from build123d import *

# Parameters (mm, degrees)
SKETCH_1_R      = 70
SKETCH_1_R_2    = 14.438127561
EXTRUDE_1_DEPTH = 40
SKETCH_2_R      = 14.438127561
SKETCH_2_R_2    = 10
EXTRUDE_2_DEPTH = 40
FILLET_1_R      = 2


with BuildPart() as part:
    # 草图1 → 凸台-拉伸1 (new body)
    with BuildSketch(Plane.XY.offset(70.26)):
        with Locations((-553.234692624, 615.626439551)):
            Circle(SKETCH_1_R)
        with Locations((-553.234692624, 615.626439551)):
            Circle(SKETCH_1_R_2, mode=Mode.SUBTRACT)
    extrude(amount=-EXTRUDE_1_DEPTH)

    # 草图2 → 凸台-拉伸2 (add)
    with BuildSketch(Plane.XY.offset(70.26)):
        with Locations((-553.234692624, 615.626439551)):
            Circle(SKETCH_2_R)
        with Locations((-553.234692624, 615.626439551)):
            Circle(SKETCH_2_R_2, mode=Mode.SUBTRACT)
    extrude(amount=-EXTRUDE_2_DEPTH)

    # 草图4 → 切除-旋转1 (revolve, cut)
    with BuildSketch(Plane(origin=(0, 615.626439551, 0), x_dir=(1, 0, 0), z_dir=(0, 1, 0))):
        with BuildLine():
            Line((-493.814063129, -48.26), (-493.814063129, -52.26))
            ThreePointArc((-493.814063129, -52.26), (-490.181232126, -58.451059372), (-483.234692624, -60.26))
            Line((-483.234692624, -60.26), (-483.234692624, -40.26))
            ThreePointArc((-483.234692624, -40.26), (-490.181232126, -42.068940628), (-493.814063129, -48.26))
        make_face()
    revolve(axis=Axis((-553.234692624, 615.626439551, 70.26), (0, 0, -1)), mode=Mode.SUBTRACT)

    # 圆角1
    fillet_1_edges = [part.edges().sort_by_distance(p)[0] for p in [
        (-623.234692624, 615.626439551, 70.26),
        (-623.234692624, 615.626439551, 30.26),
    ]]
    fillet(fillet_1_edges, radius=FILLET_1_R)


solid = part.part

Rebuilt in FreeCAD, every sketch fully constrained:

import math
import FreeCAD as App
import Part
import Sketcher

V = App.Vector
Q = App.Units.Quantity


def edges_at(feature, points):
    """Names of the edges that pass closest to the given points."""
    edges = feature.Shape.Edges
    near = lambda p: min(range(len(edges)), key=lambda i: edges[i].distToShape(Part.Vertex(*p))[0])
    return sorted({f"Edge{near(p) + 1}" for p in points})

doc = App.newDocument("Part")
body = doc.addObject("PartDesign::Body", "Body")

# Sketch on XY plane
sketch1 = body.newObject("Sketcher::SketchObject", "Sketch")
sketch1.AttachmentSupport = (doc.getObject("XY_Plane"), [""])
sketch1.MapMode = "FlatFace"
sketch1.AttachmentOffset = App.Placement(V(0, 0, 70.26), App.Rotation())
sketch1.addGeometry(Part.Circle(V(-553, 616, 0), V(0, 0, 1), 70), False)
sketch1.addGeometry(Part.Circle(V(-553, 616, 0), V(0, 0, 1), 14), False)
sketch1.addConstraint(Sketcher.Constraint("Coincident", 1, 3, 0, 3))
sketch1.addConstraint(Sketcher.Constraint("Diameter", 0, Q("140 mm")))
sketch1.addConstraint(Sketcher.Constraint("Diameter", 1, Q("28.876255 mm")))
sketch1.addConstraint(Sketcher.Constraint("DistanceY", -1, 1, 0, 3, Q("615.62644 mm")))
sketch1.addConstraint(Sketcher.Constraint("DistanceX", 0, 3, -1, 1, Q("553.234693 mm")))
pad1 = body.newObject("PartDesign::Pad", "Pad")
pad1.Profile = sketch1
pad1.Length = 40
pad1.Reversed = True

# Sketch on XY plane
sketch2 = body.newObject("Sketcher::SketchObject", "Sketch001")
sketch2.AttachmentSupport = (doc.getObject("XY_Plane"), [""])
sketch2.MapMode = "FlatFace"
sketch2.AttachmentOffset = App.Placement(V(0, 0, 70.26), App.Rotation())
sketch2.addGeometry(Part.Circle(V(-553, 616, 0), V(0, 0, 1), 14), False)
sketch2.addGeometry(Part.Circle(V(-553, 616, 0), V(0, 0, 1), 10), False)
sketch2.addConstraint(Sketcher.Constraint("Coincident", 1, 3, 0, 3))
sketch2.addConstraint(Sketcher.Constraint("Diameter", 1, Q("20 mm")))
sketch2.addConstraint(Sketcher.Constraint("Diameter", 0, Q("28.876255 mm")))
sketch2.addConstraint(Sketcher.Constraint("DistanceY", -1, 1, 0, 3, Q("615.62644 mm")))
sketch2.addConstraint(Sketcher.Constraint("DistanceX", 0, 3, -1, 1, Q("553.234693 mm")))
pad2 = body.newObject("PartDesign::Pad", "Pad001")
pad2.Profile = sketch2
pad2.Length = 40
pad2.Reversed = True

# Sketch on XZ plane
sketch3 = body.newObject("Sketcher::SketchObject", "Sketch002")
sketch3.AttachmentSupport = (doc.getObject("XZ_Plane"), [""])
sketch3.MapMode = "FlatFace"
sketch3.AttachmentOffset = App.Placement(V(0, 0, -615.62644), App.Rotation())
sketch3.addGeometry(Part.LineSegment(V(-493.8, 48.3, 0), V(-493.8, 52.3, 0)), False)
sketch3.addGeometry(Part.ArcOfCircle(Part.Circle(V(-484.5, 51, 0), V(0, 0, 1), 9.4), math.radians(82), math.radians(172)), False)
sketch3.addGeometry(Part.LineSegment(V(-483.2, 60.3, 0), V(-483.2, 40.3, 0)), False)
sketch3.addGeometry(Part.ArcOfCircle(Part.Circle(V(-484.5, 49.5, 0), V(0, 0, 1), 9.4), math.radians(-172), math.radians(-82)), False)
sketch3.addGeometry(Part.LineSegment(V(-553.2, 60.3, 0), V(-553.2, 40.3, 0)), True)  # axis
sketch3.addConstraint(Sketcher.Constraint("Coincident", 0, 2, 1, 2))
sketch3.addConstraint(Sketcher.Constraint("Coincident", 1, 1, 2, 1))
sketch3.addConstraint(Sketcher.Constraint("Coincident", 2, 2, 3, 2))
sketch3.addConstraint(Sketcher.Constraint("Coincident", 3, 1, 0, 1))
sketch3.addConstraint(Sketcher.Constraint("Vertical", 0))
sketch3.addConstraint(Sketcher.Constraint("Vertical", 2))
sketch3.addConstraint(Sketcher.Constraint("Vertical", 4))
sketch3.addConstraint(Sketcher.Constraint("Equal", 1, 3))
sketch3.addConstraint(Sketcher.Constraint("Horizontal", 1, 1, 4, 1))
sketch3.addConstraint(Sketcher.Constraint("Horizontal", 2, 2, 4, 2))
sketch3.addConstraint(Sketcher.Constraint("Vertical", 1, 3, 3, 3))
sketch3.addConstraint(Sketcher.Constraint("DistanceY", 0, 1, 0, 2, Q("4 mm")))
sketch3.addConstraint(Sketcher.Constraint("DistanceY", 2, 2, 2, 1, Q("20 mm")))
sketch3.addConstraint(Sketcher.Constraint("DistanceX", 4, 1, 1, 1, Q("70 mm")))
sketch3.addConstraint(Sketcher.Constraint("DistanceY", -1, 1, 0, 2, Q("52.26 mm")))
sketch3.addConstraint(Sketcher.Constraint("Radius", 1, Q("9.378781 mm")))
sketch3.addConstraint(Sketcher.Constraint("DistanceY", 3, 3, 1, 3, Q("1.420629 mm")))
sketch3.addConstraint(Sketcher.Constraint("DistanceX", 1, 3, -1, 1, Q("484.524378 mm")))
groove = body.newObject("PartDesign::Groove", "Groove")
groove.Profile = sketch3
groove.ReferenceAxis = (sketch3, ["Axis0"])
groove.Angle = 360
doc.recompute()

fillet = body.newObject("PartDesign::Fillet", "Fillet")
fillet.Base = (groove, edges_at(groove, [(-623.235, 615.626, 70.26), (-623.235, 615.626, 30.26)]))
fillet.Radius = 2

doc.recompute()
